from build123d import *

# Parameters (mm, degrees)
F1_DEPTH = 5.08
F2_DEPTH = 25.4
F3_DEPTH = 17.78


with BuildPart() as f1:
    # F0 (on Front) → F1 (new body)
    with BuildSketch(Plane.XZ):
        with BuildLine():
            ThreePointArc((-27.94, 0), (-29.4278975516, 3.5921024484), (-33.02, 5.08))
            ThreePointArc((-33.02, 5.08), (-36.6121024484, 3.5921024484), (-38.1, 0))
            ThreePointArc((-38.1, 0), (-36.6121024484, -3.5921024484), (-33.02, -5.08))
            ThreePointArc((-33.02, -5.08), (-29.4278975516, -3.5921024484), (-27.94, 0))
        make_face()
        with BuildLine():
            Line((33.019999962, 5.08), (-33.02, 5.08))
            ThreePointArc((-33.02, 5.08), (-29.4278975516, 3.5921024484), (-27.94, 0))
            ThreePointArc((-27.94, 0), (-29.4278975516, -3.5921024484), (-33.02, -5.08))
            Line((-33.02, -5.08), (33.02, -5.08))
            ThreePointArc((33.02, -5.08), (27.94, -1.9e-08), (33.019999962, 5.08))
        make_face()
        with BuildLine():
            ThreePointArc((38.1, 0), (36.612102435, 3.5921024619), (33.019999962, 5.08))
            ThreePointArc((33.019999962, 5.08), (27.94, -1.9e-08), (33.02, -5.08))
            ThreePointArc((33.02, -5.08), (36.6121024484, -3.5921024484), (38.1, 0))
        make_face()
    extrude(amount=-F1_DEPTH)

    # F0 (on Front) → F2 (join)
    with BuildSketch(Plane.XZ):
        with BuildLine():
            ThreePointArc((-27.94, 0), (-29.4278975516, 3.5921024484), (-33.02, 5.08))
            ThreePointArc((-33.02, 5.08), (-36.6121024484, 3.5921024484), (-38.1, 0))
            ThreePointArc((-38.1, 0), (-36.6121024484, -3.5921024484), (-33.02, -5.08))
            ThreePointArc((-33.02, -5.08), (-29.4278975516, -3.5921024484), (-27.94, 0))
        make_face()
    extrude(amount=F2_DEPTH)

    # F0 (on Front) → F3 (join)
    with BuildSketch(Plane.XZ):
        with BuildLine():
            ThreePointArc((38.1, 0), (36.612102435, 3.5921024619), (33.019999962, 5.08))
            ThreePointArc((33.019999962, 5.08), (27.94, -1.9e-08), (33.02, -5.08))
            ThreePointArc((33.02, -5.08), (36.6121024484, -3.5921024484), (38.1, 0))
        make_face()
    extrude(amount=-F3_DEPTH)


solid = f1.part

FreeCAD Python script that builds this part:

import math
import FreeCAD as App
import Part
import Sketcher
from FreeCAD import Vector
Q = App.Units.Quantity

doc = App.newDocument("Part")
body = doc.addObject("PartDesign::Body", "Body")

sketch1 = body.newObject("Sketcher::SketchObject", "Sketch")
sketch1.AttachmentSupport = (doc.getObject("XZ_Plane"), [""])
sketch1.MapMode = "FlatFace"
sketch1.addGeometry(Part.ArcOfCircle(Part.Circle(Vector(-33, 0, 0), Vector(0, 0, 1), 5), math.radians(90), math.radians(180)), False)
sketch1.addGeometry(Part.ArcOfCircle(Part.Circle(Vector(-33, 0, 0), Vector(0, 0, 1), 5), math.radians(180), math.radians(270)), False)
sketch1.addGeometry(Part.LineSegment(Vector(-33, -5, 0), Vector(33, -5, 0)), False)
sketch1.addGeometry(Part.ArcOfCircle(Part.Circle(Vector(33, 0, 0), Vector(0, 0, 1), 5), math.radians(-90), math.radians(0)), False)
sketch1.addGeometry(Part.ArcOfCircle(Part.Circle(Vector(33, 0, 0), Vector(0, 0, 1), 5), math.radians(0), math.radians(90)), False)
sketch1.addGeometry(Part.LineSegment(Vector(33, 5, 0), Vector(-33, 5, 0)), False)
sketch1.addConstraint(Sketcher.Constraint("Tangent", 0, 2, 1, 1))
sketch1.addConstraint(Sketcher.Constraint("Tangent", 1, 2, 2, 1))
sketch1.addConstraint(Sketcher.Constraint("Tangent", 2, 2, 3, 1))
sketch1.addConstraint(Sketcher.Constraint("Tangent", 3, 2, 4, 1))
sketch1.addConstraint(Sketcher.Constraint("Tangent", 4, 2, 5, 1))
sketch1.addConstraint(Sketcher.Constraint("Tangent", 5, 2, 0, 1))
sketch1.addConstraint(Sketcher.Constraint("Horizontal", 2))
sketch1.addConstraint(Sketcher.Constraint("Horizontal", 5))
sketch1.addConstraint(Sketcher.Constraint("Equal", 0, 1))
sketch1.addConstraint(Sketcher.Constraint("Equal", 1, 3))
sketch1.addConstraint(Sketcher.Constraint("Symmetric", 0, 3, 3, 3, -1, 1))
sketch1.addConstraint(Sketcher.Constraint("PointOnObject", 0, 2, -1))
sketch1.addConstraint(Sketcher.Constraint("PointOnObject", 3, 2, -1))
sketch1.addConstraint(Sketcher.Constraint("Radius", 0, Q("0.2 in")))
sketch1.addConstraint(Sketcher.Constraint("DistanceX", 2, 1, 2, 2, Q("2.6 in")))
pad1 = body.newObject("PartDesign::Pad", "Pad")
pad1.Profile = sketch1
pad1.Length = Q("0.2 in")
pad1.Reversed = True

sketch2 = body.newObject("Sketcher::SketchObject", "Sketch001")
sketch2.AttachmentSupport = (doc.getObject("XZ_Plane"), [""])
sketch2.MapMode = "FlatFace"
sketch2.addGeometry(Part.ArcOfCircle(Part.Circle(Vector(-33, 0, 0), Vector(0, 0, 1), 5), math.radians(0), math.radians(90)), False)
sketch2.addGeometry(Part.ArcOfCircle(Part.Circle(Vector(-33, 0, 0), Vector(0, 0, 1), 5), math.radians(90), math.radians(180)), False)
sketch2.addGeometry(Part.ArcOfCircle(Part.Circle(Vector(-33, 0, 0), Vector(0, 0, 1), 5), math.radians(180), math.radians(270)), False)
sketch2.addGeometry(Part.ArcOfCircle(Part.Circle(Vector(-33, 0, 0), Vector(0, 0, 1), 5), math.radians(-90), math.radians(0)), False)
sketch2.addConstraint(Sketcher.Constraint("Tangent", 0, 2, 1, 1))
sketch2.addConstraint(Sketcher.Constraint("Tangent", 1, 2, 2, 1))
sketch2.addConstraint(Sketcher.Constraint("Tangent", 2, 2, 3, 1))
sketch2.addConstraint(Sketcher.Constraint("Tangent", 3, 2, 0, 1))
sketch2.addConstraint(Sketcher.Constraint("Equal", 0, 1))
sketch2.addConstraint(Sketcher.Constraint("Symmetric", 0, 2, 2, 2, -1))
sketch2.addConstraint(Sketcher.Constraint("PointOnObject", 1, 2, -1))
sketch2.addConstraint(Sketcher.Constraint("PointOnObject", 3, 2, -1))
sketch2.addConstraint(Sketcher.Constraint("Vertical", 3, 3, 0, 2))
sketch2.addConstraint(Sketcher.Constraint("Radius", 0, Q("0.2 in")))
sketch2.addConstraint(Sketcher.Constraint("DistanceX", 0, 3, -1, 1, Q("1.3 in")))
pad2 = body.newObject("PartDesign::Pad", "Pad001")
pad2.Profile = sketch2
pad2.Length = Q("1 in")

sketch3 = body.newObject("Sketcher::SketchObject", "Sketch002")
sketch3.AttachmentSupport = (doc.getObject("XZ_Plane"), [""])
sketch3.MapMode = "FlatFace"
sketch3.addGeometry(Part.ArcOfCircle(Part.Circle(Vector(33, 0, 0), Vector(0, 0, 1), 5), math.radians(0), math.radians(90)), False)
sketch3.addGeometry(Part.ArcOfCircle(Part.Circle(Vector(33, 0, 0), Vector(0, 0, 1), 5), math.radians(90), math.radians(270)), False)
sketch3.addGeometry(Part.ArcOfCircle(Part.Circle(Vector(33, 0, 0), Vector(0, 0, 1), 5), math.radians(-90), math.radians(0)), False)
sketch3.addConstraint(Sketcher.Constraint("Tangent", 0, 2, 1, 1))
sketch3.addConstraint(Sketcher.Constraint("Tangent", 1, 2, 2, 1))
sketch3.addConstraint(Sketcher.Constraint("Tangent", 2, 2, 0, 1))
sketch3.addConstraint(Sketcher.Constraint("Symmetric", 0, 2, 1, 2, -1))
sketch3.addConstraint(Sketcher.Constraint("PointOnObject", 2, 2, -1))
sketch3.addConstraint(Sketcher.Constraint("Vertical", 2, 3, 0, 2))
sketch3.addConstraint(Sketcher.Constraint("Radius", 0, Q("0.2 in")))
sketch3.addConstraint(Sketcher.Constraint("DistanceX", -1, 1, 0, 3, Q("1.3 in")))
pad3 = body.newObject("PartDesign::Pad", "Pad002")
pad3.Profile = sketch3
pad3.Length = Q("0.7 in")
pad3.Reversed = True

doc.recompute()
